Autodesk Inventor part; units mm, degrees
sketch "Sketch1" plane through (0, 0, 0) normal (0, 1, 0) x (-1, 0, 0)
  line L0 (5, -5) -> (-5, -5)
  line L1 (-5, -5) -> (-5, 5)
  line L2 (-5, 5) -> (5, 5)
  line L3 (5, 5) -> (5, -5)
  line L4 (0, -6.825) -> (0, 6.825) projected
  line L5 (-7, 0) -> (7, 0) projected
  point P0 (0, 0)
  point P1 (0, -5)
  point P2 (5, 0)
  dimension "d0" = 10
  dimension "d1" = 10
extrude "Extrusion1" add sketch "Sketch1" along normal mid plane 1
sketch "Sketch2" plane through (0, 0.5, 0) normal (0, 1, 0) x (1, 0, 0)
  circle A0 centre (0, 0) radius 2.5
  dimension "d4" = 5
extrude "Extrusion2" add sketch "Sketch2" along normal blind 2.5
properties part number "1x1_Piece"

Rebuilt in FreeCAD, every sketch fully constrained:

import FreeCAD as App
import Part
import Sketcher

V = App.Vector
Q = App.Units.Quantity


def add_polygon(sketch, points):
    """Adds a closed chain of lines whose ends are joined by coincident constraints."""
    first, n = sketch.GeometryCount, len(points)
    for a, b in zip(points, points[1:] + points[:1]):
        sketch.addGeometry(Part.LineSegment(App.Vector(*a, 0), App.Vector(*b, 0)), False)
    for i in range(n):
        sketch.addConstraint(Sketcher.Constraint("Coincident", first + i, 2, first + (i + 1) % n, 1))

doc = App.newDocument("Part")
body = doc.addObject("PartDesign::Body", "Body")

# Sketch on XZ plane
sketch1 = body.newObject("Sketcher::SketchObject", "Sketch")
sketch1.AttachmentSupport = (doc.getObject("XZ_Plane"), [""])
sketch1.MapMode = "FlatFace"
add_polygon(sketch1, [(-5, -5), (-5, 5), (5, 5), (5, -5)])  # lines 0-3
sketch1.addConstraint([
    Sketcher.Constraint("Vertical", 0),
    Sketcher.Constraint("Horizontal", 1),
    Sketcher.Constraint("Vertical", 2),
    Sketcher.Constraint("Horizontal", 3),
    Sketcher.Constraint("Symmetric", 0, 2, 2, 2, -1, 1),
    Sketcher.Constraint("Equal", 3, 0),
    Sketcher.Constraint("DistanceX", 1, 1, 1, 2, Q("10 mm")),
])
pad1 = body.newObject("PartDesign::Pad", "Pad")
pad1.Profile = sketch1
pad1.Length = 1
pad1.Midplane = True

# Sketch on XZ plane
sketch2 = body.newObject("Sketcher::SketchObject", "Sketch001")
sketch2.AttachmentSupport = (doc.getObject("XZ_Plane"), [""])
sketch2.MapMode = "FlatFace"
sketch2.AttachmentOffset = App.Placement(V(0, 0, -0.5), App.Rotation())
sketch2.addGeometry(Part.Circle(V(0, 0, 0), V(0, 0, 1), 2.5), False)
sketch2.addConstraint([
    Sketcher.Constraint("Coincident", 0, 3, -1, 1),
    Sketcher.Constraint("Diameter", 0, Q("5 mm")),
])
pad2 = body.newObject("PartDesign::Pad", "Pad001")
pad2.Profile = sketch2
pad2.Length = 2.5
pad2.Reversed = True

doc.recompute()
